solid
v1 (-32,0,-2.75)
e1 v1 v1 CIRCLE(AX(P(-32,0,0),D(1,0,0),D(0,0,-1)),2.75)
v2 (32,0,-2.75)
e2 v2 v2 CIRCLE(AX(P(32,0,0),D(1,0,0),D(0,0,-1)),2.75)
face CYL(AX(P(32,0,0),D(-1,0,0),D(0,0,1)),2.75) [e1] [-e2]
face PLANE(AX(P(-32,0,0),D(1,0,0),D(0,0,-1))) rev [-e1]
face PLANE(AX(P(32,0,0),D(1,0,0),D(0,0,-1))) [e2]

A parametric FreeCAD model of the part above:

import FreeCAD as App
import Part
import Sketcher
from FreeCAD import Vector
Q = App.Units.Quantity

doc = App.newDocument("Part")
body = doc.addObject("PartDesign::Body", "Body")

sketch1 = doc.addObject("Sketcher::SketchObject", "Sketch")
body.addObject(sketch1)
sketch1.AttachmentSupport = (doc.YZ_Plane, [""])
sketch1.MapMode = "FlatFace"
sketch1.addGeometry(Part.Circle(Vector(0, 0, 0), Vector(0, 0, 1), 2.8), False)
sketch1.addConstraint([
    Sketcher.Constraint("Coincident", 0, 3, -1, 1),
    Sketcher.Constraint("Diameter", 0, Q("5.5 mm")),
])
pad1 = doc.addObject("PartDesign::Pad", "Pad")
body.addObject(pad1)
pad1.Profile = sketch1
pad1.Length = 64
pad1.Midplane = True

doc.recompute()
